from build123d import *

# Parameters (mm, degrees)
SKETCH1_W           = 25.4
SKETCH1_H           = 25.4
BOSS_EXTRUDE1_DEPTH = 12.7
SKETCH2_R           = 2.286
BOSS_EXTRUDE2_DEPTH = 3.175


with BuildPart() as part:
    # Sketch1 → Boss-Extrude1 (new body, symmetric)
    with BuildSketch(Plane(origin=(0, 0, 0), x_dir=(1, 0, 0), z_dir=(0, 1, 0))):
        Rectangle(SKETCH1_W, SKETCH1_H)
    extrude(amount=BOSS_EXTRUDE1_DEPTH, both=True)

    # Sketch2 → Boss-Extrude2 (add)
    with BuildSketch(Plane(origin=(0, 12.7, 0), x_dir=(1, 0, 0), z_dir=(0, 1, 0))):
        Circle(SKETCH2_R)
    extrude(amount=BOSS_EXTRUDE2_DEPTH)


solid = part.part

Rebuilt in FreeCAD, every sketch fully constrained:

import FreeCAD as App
import Part
import Sketcher
Q = App.Units.Quantity


def add_polygon(sketch, points):
    """Adds a closed chain of lines whose ends are joined by coincident constraints."""
    first, n = sketch.GeometryCount, len(points)
    for a, b in zip(points, points[1:] + points[:1]):
        sketch.addGeometry(Part.LineSegment(App.Vector(*a, 0), App.Vector(*b, 0)), False)
    for i in range(n):
        sketch.addConstraint(Sketcher.Constraint("Coincident", first + i, 2, first + (i + 1) % n, 1))

doc = App.newDocument("Part")
body = doc.addObject("PartDesign::Body", "Body")

sketch1 = body.newObject("Sketcher::SketchObject", "Sketch")
sketch1.AttachmentSupport = (doc.getObject("XZ_Plane"), [""])
sketch1.MapMode = "FlatFace"
add_polygon(sketch1, [(-13, -13), (-13, 13), (13, 13), (13, -13)])
sketch1.addConstraint([
    Sketcher.Constraint("Vertical", 0),
    Sketcher.Constraint("Horizontal", 1),
    Sketcher.Constraint("Vertical", 2),
    Sketcher.Constraint("Horizontal", 3),
    Sketcher.Constraint("Symmetric", 0, 2, 2, 2, -1, 1),
    Sketcher.Constraint("Equal", 3, 0),
    Sketcher.Constraint("DistanceX", 1, 1, 1, 2, Q("1 in")),
])
pad1 = body.newObject("PartDesign::Pad", "Pad")
pad1.Profile = sketch1
pad1.Length = Q("1 in")
pad1.Midplane = True

sketch2 = body.newObject("Sketcher::SketchObject", "Sketch001")
sketch2.AttachmentSupport = (doc.getObject("XZ_Plane"), [""])
sketch2.MapMode = "FlatFace"
sketch2.AttachmentOffset = App.Placement(App.Vector(0, 0, -0.5 * 25.4), App.Rotation())
sketch2.addGeometry(Part.Circle(App.Vector(0, 0, 0), App.Vector(0, 0, 1), 2.3), False)
sketch2.addConstraint([
    Sketcher.Constraint("Coincident", 0, 3, -1, 1),
    Sketcher.Constraint("Diameter", 0, Q("0.18 in")),
])
pad2 = body.newObject("PartDesign::Pad", "Pad001")
pad2.Profile = sketch2
pad2.Length = Q("0.125 in")
pad2.Reversed = True

doc.recompute()
